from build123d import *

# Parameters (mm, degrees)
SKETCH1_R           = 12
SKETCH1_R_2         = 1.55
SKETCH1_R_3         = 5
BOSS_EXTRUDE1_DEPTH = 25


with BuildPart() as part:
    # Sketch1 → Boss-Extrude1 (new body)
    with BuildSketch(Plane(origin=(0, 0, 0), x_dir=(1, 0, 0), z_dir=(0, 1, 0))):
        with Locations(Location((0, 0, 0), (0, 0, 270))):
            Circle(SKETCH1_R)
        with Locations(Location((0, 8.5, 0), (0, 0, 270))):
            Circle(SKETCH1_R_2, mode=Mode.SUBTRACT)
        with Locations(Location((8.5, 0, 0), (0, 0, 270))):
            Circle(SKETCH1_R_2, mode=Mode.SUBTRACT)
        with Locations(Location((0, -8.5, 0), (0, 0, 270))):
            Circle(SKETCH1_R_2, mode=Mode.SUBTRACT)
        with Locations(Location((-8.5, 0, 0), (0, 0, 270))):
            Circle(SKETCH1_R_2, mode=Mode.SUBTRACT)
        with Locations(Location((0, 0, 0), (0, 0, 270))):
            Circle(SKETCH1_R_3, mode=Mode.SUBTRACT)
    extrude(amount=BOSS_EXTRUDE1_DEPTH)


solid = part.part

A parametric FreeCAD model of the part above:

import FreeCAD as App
import Part
import Sketcher

doc = App.newDocument("Part")
body = doc.addObject("PartDesign::Body", "Body")

# Sketch on XZ plane
sketch1 = body.newObject("Sketcher::SketchObject", "Sketch")
sketch1.AttachmentSupport = (doc.getObject("XZ_Plane"), [""])
sketch1.MapMode = "FlatFace"
sketch1.addGeometry(Part.Circle(App.Vector(0, 0, 0), App.Vector(0, 0, 1), 12), False)
sketch1.addGeometry(Part.Circle(App.Vector(0, -8.5, 0), App.Vector(0, 0, 1), 1.6), False)
sketch1.addGeometry(Part.Circle(App.Vector(-8.5, 0, 0), App.Vector(0, 0, 1), 1.6), False)
sketch1.addGeometry(Part.Circle(App.Vector(8.5, 0, 0), App.Vector(0, 0, 1), 1.6), False)
sketch1.addGeometry(Part.Circle(App.Vector(0, 0, 0), App.Vector(0, 0, 1), 5), False)
sketch1.addGeometry(Part.Circle(App.Vector(0, 8.5, 0), App.Vector(0, 0, 1), 1.6), False)
sketch1.addConstraint(Sketcher.Constraint("Coincident", 0, 3, -1, 1))
sketch1.addConstraint(Sketcher.Constraint("Coincident", 4, 3, -1, 1))
sketch1.addConstraint(Sketcher.Constraint("Equal", 1, 2))
sketch1.addConstraint(Sketcher.Constraint("Equal", 2, 3))
sketch1.addConstraint(Sketcher.Constraint("Equal", 3, 5))
sketch1.addConstraint(Sketcher.Constraint("Symmetric", 2, 3, 3, 3, -1, 1))
sketch1.addConstraint(Sketcher.Constraint("Symmetric", 1, 3, 5, 3, -1, 1))
sketch1.addConstraint(Sketcher.Constraint("PointOnObject", 1, 3, -2))
sketch1.addConstraint(Sketcher.Constraint("PointOnObject", 2, 3, -1))
sketch1.addConstraint(Sketcher.Constraint("Diameter", 0, 24.0))
sketch1.addConstraint(Sketcher.Constraint("Diameter", 4, 10.0))
sketch1.addConstraint(Sketcher.Constraint("Diameter", 1, 3.1))
sketch1.addConstraint(Sketcher.Constraint("DistanceX", 2, 3, 3, 3, 17.0))
sketch1.addConstraint(Sketcher.Constraint("DistanceY", 1, 3, 5, 3, 17.0))
pad1 = body.newObject("PartDesign::Pad", "Pad")
pad1.Profile = sketch1
pad1.Length = 25
pad1.Reversed = True

doc.recompute()
